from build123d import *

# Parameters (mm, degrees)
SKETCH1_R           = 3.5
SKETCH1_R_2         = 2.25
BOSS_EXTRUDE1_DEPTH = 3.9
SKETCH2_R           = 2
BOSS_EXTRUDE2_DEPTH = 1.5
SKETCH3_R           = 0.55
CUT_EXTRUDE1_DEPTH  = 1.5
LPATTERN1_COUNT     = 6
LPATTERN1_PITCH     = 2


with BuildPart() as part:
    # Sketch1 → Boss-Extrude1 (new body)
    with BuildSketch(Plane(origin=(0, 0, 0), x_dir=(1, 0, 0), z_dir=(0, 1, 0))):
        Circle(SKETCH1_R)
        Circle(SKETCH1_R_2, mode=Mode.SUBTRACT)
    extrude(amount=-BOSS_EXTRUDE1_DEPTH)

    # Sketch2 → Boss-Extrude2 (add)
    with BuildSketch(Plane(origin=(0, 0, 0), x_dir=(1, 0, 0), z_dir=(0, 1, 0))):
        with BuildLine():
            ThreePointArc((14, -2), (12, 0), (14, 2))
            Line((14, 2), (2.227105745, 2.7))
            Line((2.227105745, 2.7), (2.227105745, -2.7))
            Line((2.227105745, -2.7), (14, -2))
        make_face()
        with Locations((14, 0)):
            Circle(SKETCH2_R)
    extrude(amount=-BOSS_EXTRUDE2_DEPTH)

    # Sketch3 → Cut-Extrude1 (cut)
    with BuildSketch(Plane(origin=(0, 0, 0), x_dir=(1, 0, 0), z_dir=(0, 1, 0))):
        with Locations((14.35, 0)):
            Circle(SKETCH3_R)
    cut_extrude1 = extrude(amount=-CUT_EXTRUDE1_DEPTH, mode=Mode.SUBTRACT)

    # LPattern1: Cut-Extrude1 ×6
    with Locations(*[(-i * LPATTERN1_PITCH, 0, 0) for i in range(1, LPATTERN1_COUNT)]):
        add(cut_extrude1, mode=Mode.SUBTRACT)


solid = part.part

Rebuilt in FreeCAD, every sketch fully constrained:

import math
import FreeCAD as App
import Part
import Sketcher

V = App.Vector
Q = App.Units.Quantity

doc = App.newDocument("Part")
body = doc.addObject("PartDesign::Body", "Body")

sketch1 = body.newObject("Sketcher::SketchObject", "Sketch")
sketch1.AttachmentSupport = (doc.getObject("XZ_Plane"), [""])
sketch1.MapMode = "FlatFace"
sketch1.addGeometry(Part.Circle(V(0, 0, 0), V(0, 0, 1), 3.5), False)
sketch1.addGeometry(Part.Circle(V(0, 0, 0), V(0, 0, 1), 2.2), False)
sketch1.addConstraint(Sketcher.Constraint("Coincident", 0, 3, -1, 1))
sketch1.addConstraint(Sketcher.Constraint("Coincident", 1, 3, -1, 1))
sketch1.addConstraint(Sketcher.Constraint("Diameter", 0, Q("7 mm")))
sketch1.addConstraint(Sketcher.Constraint("Diameter", 1, Q("4.5 mm")))
pad1 = body.newObject("PartDesign::Pad", "Pad")
pad1.Profile = sketch1
pad1.Length = 3.9

sketch2 = body.newObject("Sketcher::SketchObject", "Sketch001")
sketch2.AttachmentSupport = (doc.getObject("XZ_Plane"), [""])
sketch2.MapMode = "FlatFace"
sketch2.addGeometry(Part.LineSegment(V(14, -2, 0), V(2.2, -2.7, 0)), False)
sketch2.addGeometry(Part.LineSegment(V(2.2, -2.7, 0), V(2.2, 2.7, 0)), False)
sketch2.addGeometry(Part.LineSegment(V(2.2, 2.7, 0), V(14, 2, 0)), False)
sketch2.addGeometry(Part.ArcOfCircle(Part.Circle(V(14, 0, 0), V(0, 0, 1), 2), math.radians(-90), math.radians(90)), False)
sketch2.addConstraint(Sketcher.Constraint("Coincident", 0, 2, 1, 1))
sketch2.addConstraint(Sketcher.Constraint("Coincident", 1, 2, 2, 1))
sketch2.addConstraint(Sketcher.Constraint("Coincident", 2, 2, 3, 2))
sketch2.addConstraint(Sketcher.Constraint("Coincident", 3, 1, 0, 1))
sketch2.addConstraint(Sketcher.Constraint("Vertical", 1))
sketch2.addConstraint(Sketcher.Constraint("Symmetric", 2, 2, 3, 1, -1))
sketch2.addConstraint(Sketcher.Constraint("Vertical", 3, 3, 2, 2))
sketch2.addConstraint(Sketcher.Constraint("Equal", 0, 2))
sketch2.addConstraint(Sketcher.Constraint("Radius", 3, Q("2 mm")))
sketch2.addConstraint(Sketcher.Constraint("DistanceY", 1, 1, 1, 2, Q("5.4 mm")))
sketch2.addConstraint(Sketcher.Constraint("DistanceX", -1, 1, 3, 3, Q("14 mm")))
sketch2.addConstraint(Sketcher.Constraint("Distance", 0, Q("11.793686 mm")))
pad2 = body.newObject("PartDesign::Pad", "Pad001")
pad2.Profile = sketch2
pad2.Length = 1.5

sketch3 = body.newObject("Sketcher::SketchObject", "Sketch002")
sketch3.AttachmentSupport = (doc.getObject("XZ_Plane"), [""])
sketch3.MapMode = "FlatFace"
sketch3.addGeometry(Part.Circle(V(14.3, 0, 0), V(0, 0, 1), 0.6), False)
sketch3.addConstraint(Sketcher.Constraint("PointOnObject", 0, 3, -1))
sketch3.addConstraint(Sketcher.Constraint("Diameter", 0, Q("1.1 mm")))
sketch3.addConstraint(Sketcher.Constraint("DistanceX", -1, 1, 0, 3, Q("14.35 mm")))
pocket1 = body.newObject("PartDesign::Pocket", "Pocket")
pocket1.Profile = sketch3
pocket1.Length = 1.5
pocket1.Reversed = True
doc.recompute()

linearpattern = body.newObject("PartDesign::LinearPattern", "LinearPattern")
linearpattern.Originals = [pocket1]
linearpattern.Direction = (doc.getObject("X_Axis"), [""])
linearpattern.Mode = "offset"
linearpattern.Offset = 2
linearpattern.Occurrences = 6
linearpattern.Reversed = True
body.Tip = linearpattern

doc.recompute()
